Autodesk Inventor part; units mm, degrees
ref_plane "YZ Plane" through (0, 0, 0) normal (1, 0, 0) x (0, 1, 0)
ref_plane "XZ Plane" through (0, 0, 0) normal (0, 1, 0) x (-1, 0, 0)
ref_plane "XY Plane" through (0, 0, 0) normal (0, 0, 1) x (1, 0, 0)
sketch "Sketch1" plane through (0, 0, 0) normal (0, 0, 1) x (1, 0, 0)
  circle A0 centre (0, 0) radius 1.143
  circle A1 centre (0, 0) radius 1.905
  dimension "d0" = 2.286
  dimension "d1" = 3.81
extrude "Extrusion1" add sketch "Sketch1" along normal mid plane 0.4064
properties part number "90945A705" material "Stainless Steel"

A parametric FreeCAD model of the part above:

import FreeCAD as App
import Part
import Sketcher
Q = App.Units.Quantity

doc = App.newDocument("Part")
params = doc.addObject("Spreadsheet::Sheet", "Params")
for row, (alias, value) in enumerate([
    ("sketch1_diameter", "0.15 in"),
    ("sketch1_diameter2", "0.09 in"),
    ("pad1_length", "0.016 in"),
], start=1):
    params.set(f"A{row}", alias)
    params.set(f"B{row}", "=" + value)
    params.setAlias(f"B{row}", alias)

body = doc.addObject("PartDesign::Body", "Body")

sketch1 = doc.addObject("Sketcher::SketchObject", "Sketch")
body.addObject(sketch1)
sketch1.AttachmentSupport = (doc.XY_Plane, [""])
sketch1.MapMode = "FlatFace"
sketch1.addGeometry(Part.Circle(App.Vector(0, 0, 0), App.Vector(0, 0, 1), 1.905), False)
sketch1.addGeometry(Part.Circle(App.Vector(0, 0, 0), App.Vector(0, 0, 1), 1.143), False)
sketch1.addConstraint(Sketcher.Constraint("Coincident", 0, 3, -1, 1))
sketch1.addConstraint(Sketcher.Constraint("Coincident", 1, 3, -1, 1))
sketch1.addConstraint(Sketcher.Constraint("Diameter", 0, Q("0.15 in")))
sketch1.addConstraint(Sketcher.Constraint("Diameter", 1, Q("0.09 in")))
sketch1.setExpression("Constraints[2]", "Params.sketch1_diameter")
sketch1.setExpression("Constraints[3]", "Params.sketch1_diameter2")
pad1 = doc.addObject("PartDesign::Pad", "Pad")
body.addObject(pad1)
pad1.Profile = sketch1
pad1.setExpression("Length", "Params.pad1_length")
pad1.Midplane = True

doc.recompute()
